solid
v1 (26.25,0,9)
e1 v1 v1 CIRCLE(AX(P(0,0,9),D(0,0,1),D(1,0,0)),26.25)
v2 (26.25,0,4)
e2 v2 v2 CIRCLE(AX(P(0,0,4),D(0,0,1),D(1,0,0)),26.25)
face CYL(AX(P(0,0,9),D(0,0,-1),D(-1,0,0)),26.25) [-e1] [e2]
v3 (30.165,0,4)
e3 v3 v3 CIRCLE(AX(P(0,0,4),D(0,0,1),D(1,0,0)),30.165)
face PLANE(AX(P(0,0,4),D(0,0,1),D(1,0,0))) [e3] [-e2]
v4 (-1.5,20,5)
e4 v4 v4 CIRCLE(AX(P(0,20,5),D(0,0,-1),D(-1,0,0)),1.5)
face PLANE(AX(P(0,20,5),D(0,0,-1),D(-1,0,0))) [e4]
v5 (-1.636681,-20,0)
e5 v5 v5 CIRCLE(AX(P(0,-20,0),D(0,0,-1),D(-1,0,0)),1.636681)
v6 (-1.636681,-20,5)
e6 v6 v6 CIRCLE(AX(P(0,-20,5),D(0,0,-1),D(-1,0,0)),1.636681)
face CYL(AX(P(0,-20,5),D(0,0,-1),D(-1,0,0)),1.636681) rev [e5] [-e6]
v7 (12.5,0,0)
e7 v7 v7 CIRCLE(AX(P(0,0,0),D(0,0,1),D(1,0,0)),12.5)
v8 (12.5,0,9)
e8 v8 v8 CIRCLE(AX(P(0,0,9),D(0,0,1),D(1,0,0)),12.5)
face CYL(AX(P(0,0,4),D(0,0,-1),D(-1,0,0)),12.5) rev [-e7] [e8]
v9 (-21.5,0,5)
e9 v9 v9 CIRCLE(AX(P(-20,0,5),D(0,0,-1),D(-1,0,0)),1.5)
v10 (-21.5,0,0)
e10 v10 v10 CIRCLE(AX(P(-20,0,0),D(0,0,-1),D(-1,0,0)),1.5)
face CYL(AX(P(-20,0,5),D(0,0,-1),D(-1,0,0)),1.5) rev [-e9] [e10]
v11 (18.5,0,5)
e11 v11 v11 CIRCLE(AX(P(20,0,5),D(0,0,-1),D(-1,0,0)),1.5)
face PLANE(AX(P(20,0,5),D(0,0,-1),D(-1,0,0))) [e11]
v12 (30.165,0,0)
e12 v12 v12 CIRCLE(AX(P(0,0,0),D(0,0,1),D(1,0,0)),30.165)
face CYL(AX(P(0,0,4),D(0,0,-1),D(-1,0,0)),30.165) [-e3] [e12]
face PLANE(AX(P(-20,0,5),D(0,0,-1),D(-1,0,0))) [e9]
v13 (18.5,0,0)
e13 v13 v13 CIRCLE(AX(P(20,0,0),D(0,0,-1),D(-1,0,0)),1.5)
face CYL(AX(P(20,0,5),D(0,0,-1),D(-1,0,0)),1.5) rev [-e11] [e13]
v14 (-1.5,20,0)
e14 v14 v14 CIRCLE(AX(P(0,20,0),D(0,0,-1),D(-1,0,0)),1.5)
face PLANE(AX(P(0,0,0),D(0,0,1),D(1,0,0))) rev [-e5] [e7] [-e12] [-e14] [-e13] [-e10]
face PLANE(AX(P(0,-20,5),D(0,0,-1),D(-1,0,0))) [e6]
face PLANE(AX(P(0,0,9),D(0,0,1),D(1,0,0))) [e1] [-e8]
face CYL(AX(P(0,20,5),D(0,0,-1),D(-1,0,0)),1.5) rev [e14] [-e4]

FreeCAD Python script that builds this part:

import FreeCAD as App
import Part
import Sketcher
from FreeCAD import Vector

doc = App.newDocument("Part")
params = doc.addObject("Spreadsheet::Sheet", "Params")
for row, (alias, value) in enumerate([
    ("sketch1_diameter", "25 mm"),
    ("sketch1_diameter2", "60.33 mm"),
    ("pad1_length", "4 mm"),
    ("sketch2_diameter", "25 mm"),
    ("sketch2_diameter2", "52.5 mm"),
    ("pad2_length", "5 mm"),
    ("sketch3_diameter", "3 mm"),
    ("pocket1_length", "5 mm"),
], start=1):
    params.set(f"A{row}", alias)
    params.set(f"B{row}", "=" + value)
    params.setAlias(f"B{row}", alias)

body = doc.addObject("PartDesign::Body", "Body")

sketch1 = body.newObject("Sketcher::SketchObject", "Sketch")
sketch1.AttachmentSupport = (doc.getObject("XY_Plane"), [""])
sketch1.MapMode = "FlatFace"
sketch1.addGeometry([
    Part.Circle(Vector(0, 0, 0), Vector(0, 0, 1), 30),
    Part.Circle(Vector(0, 0, 0), Vector(0, 0, 1), 12),
], False)
sketch1.addConstraint([
    Sketcher.Constraint("Coincident", 0, 3, -1, 1),
    Sketcher.Constraint("Coincident", 1, 3, -1, 1),
    Sketcher.Constraint("Diameter", 1, 25.0),
    Sketcher.Constraint("Diameter", 0, 60.33),
])
sketch1.setExpression("Constraints[2]", "Params.sketch1_diameter")
sketch1.setExpression("Constraints[3]", "Params.sketch1_diameter2")
pad1 = body.newObject("PartDesign::Pad", "Pad")
pad1.Profile = sketch1
pad1.setExpression("Length", "Params.pad1_length")

sketch2 = body.newObject("Sketcher::SketchObject", "Sketch001")
sketch2.AttachmentSupport = (doc.getObject("XY_Plane"), [""])
sketch2.MapMode = "FlatFace"
sketch2.AttachmentOffset = App.Placement(Vector(0, 0, 4), App.Rotation())
sketch2.addGeometry([
    Part.Circle(Vector(0, 0, 0), Vector(0, 0, 1), 26),
    Part.Circle(Vector(0, 0, 0), Vector(0, 0, 1), 12),
], False)
sketch2.addConstraint([
    Sketcher.Constraint("Coincident", 0, 3, -1, 1),
    Sketcher.Constraint("Coincident", 1, 3, -1, 1),
    Sketcher.Constraint("Diameter", 1, 25.0),
    Sketcher.Constraint("Diameter", 0, 52.5),
])
sketch2.setExpression("Constraints[2]", "Params.sketch2_diameter")
sketch2.setExpression("Constraints[3]", "Params.sketch2_diameter2")
pad2 = body.newObject("PartDesign::Pad", "Pad001")
pad2.Profile = sketch2
pad2.setExpression("Length", "Params.pad2_length")

sketch3 = body.newObject("Sketcher::SketchObject", "Sketch002")
sketch3.AttachmentSupport = (doc.getObject("XY_Plane"), [""])
sketch3.MapMode = "FlatFace"
sketch3.addGeometry([
    Part.Circle(Vector(0, 20, 0), Vector(0, 0, 1), 1.5),
    Part.Circle(Vector(0, -20, 0), Vector(0, 0, 1), 1.6),
    Part.Circle(Vector(-20, 0, 0), Vector(0, 0, 1), 1.5),
    Part.Circle(Vector(20, 0, 0), Vector(0, 0, 1), 1.5),
], False)
sketch3.addConstraint([
    Sketcher.Constraint("Equal", 0, 2),
    Sketcher.Constraint("Equal", 2, 3),
    Sketcher.Constraint("Symmetric", 0, 3, 1, 3, -1, 1),
    Sketcher.Constraint("Symmetric", 2, 3, 3, 3, -1, 1),
    Sketcher.Constraint("PointOnObject", 0, 3, -2),
    Sketcher.Constraint("PointOnObject", 2, 3, -1),
    Sketcher.Constraint("Diameter", 0, 3.0),
    Sketcher.Constraint("DistanceY", -1, 1, 0, 3, 20.0),
    Sketcher.Constraint("DistanceX", 2, 3, -1, 1, 20.0),
    Sketcher.Constraint("Diameter", 1, 3.273362),
])
sketch3.setExpression("Constraints[6]", "Params.sketch3_diameter")
pocket1 = body.newObject("PartDesign::Pocket", "Pocket")
pocket1.Profile = sketch3
pocket1.setExpression("Length", "Params.pocket1_length")
pocket1.Reversed = True

doc.recompute()
